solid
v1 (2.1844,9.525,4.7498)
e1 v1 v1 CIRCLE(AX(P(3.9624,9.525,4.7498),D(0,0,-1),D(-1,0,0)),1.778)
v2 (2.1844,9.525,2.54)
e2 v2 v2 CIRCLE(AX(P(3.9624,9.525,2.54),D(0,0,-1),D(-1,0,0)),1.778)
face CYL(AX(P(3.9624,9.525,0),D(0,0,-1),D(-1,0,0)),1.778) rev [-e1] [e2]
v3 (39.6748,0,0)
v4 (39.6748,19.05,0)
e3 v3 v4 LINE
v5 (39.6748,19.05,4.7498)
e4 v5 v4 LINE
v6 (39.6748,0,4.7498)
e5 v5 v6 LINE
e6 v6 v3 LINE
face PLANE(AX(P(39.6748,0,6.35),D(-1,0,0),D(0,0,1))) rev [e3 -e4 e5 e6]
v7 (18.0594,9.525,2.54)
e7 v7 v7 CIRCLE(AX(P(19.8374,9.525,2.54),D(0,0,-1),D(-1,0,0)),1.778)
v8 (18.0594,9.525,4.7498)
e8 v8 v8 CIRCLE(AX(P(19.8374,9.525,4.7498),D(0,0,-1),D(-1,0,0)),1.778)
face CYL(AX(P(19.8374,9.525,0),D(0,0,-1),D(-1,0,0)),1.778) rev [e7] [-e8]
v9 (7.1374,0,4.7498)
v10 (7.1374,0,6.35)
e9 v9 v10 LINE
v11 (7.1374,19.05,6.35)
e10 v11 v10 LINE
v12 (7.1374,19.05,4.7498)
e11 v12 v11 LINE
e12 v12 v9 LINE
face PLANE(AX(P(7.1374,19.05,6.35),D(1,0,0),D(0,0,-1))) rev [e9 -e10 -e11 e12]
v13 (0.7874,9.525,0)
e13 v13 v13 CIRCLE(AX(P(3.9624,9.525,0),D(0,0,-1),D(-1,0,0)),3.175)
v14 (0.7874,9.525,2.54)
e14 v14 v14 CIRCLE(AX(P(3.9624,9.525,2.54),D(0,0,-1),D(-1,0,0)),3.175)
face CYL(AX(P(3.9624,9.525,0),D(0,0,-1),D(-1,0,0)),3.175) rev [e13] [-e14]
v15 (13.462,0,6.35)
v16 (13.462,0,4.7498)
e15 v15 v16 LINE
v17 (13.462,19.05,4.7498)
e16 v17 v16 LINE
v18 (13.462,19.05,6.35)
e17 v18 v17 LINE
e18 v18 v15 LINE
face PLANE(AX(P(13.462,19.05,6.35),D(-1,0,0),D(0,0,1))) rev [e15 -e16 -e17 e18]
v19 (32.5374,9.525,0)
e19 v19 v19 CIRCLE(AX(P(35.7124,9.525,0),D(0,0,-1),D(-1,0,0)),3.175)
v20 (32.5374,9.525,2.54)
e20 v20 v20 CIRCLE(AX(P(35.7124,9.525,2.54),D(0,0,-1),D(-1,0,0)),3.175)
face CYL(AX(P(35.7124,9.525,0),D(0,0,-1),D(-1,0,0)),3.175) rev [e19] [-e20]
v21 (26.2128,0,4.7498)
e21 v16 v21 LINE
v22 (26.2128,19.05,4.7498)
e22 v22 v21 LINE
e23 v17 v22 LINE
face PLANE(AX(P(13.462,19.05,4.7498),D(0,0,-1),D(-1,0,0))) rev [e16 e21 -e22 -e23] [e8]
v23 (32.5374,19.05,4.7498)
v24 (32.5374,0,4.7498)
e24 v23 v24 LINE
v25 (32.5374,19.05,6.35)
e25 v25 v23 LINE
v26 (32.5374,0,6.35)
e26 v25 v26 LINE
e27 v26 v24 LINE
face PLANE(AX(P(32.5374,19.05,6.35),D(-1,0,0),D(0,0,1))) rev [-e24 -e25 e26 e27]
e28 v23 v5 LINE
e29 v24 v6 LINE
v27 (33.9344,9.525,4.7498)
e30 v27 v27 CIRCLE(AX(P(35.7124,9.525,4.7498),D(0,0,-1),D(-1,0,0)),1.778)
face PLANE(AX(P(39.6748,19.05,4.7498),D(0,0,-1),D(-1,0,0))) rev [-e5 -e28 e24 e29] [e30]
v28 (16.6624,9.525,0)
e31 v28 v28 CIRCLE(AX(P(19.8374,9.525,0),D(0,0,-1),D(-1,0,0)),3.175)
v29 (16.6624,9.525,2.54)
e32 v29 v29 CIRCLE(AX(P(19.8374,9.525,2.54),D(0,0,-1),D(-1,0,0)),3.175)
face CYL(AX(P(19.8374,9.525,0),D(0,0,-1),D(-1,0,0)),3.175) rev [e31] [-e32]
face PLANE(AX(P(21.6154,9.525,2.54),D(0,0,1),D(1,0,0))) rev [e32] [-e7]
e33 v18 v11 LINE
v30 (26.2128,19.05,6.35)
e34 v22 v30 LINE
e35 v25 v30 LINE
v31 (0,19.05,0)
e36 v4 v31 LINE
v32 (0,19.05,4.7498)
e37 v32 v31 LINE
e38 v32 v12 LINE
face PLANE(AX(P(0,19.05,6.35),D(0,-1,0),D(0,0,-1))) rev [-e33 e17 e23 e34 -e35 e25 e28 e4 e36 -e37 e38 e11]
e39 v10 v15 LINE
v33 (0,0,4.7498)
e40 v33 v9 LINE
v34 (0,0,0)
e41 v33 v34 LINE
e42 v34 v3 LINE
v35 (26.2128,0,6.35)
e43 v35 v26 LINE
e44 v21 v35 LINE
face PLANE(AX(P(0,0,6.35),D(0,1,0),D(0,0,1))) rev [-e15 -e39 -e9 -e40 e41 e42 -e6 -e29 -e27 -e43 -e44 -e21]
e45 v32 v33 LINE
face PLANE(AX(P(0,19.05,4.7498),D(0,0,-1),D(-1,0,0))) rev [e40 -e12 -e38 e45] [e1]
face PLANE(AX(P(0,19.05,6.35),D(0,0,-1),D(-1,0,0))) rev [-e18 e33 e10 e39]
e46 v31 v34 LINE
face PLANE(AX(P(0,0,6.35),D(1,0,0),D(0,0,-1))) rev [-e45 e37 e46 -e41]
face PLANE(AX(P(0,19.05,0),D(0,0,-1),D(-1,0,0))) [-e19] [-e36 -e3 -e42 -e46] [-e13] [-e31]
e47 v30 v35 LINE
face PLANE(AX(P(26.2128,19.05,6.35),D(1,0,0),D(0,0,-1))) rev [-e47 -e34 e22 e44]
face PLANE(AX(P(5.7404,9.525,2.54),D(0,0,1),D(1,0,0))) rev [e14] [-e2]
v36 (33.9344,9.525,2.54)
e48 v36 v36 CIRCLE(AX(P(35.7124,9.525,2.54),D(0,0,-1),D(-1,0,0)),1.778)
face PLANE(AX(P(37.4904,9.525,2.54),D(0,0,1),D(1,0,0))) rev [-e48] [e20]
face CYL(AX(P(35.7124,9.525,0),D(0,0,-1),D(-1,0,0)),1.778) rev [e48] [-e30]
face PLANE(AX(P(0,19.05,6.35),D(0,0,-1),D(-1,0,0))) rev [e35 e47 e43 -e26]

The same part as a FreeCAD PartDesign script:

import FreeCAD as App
import Part
import Sketcher

V = App.Vector
Q = App.Units.Quantity


def add_polygon(sketch, points):
    """Adds a closed chain of lines whose ends are joined by coincident constraints."""
    first, n = sketch.GeometryCount, len(points)
    for a, b in zip(points, points[1:] + points[:1]):
        sketch.addGeometry(Part.LineSegment(App.Vector(*a, 0), App.Vector(*b, 0)), False)
    for i in range(n):
        sketch.addConstraint(Sketcher.Constraint("Coincident", first + i, 2, first + (i + 1) % n, 1))

doc = App.newDocument("Part")
params = doc.addObject("Spreadsheet::Sheet", "Params")
for row, (alias, value) in enumerate([
    ("sketch1_height", "0.75 in"),
    ("sketch1_width", "1.562 in"),
    ("pad1_length", "0.25 in"),
    ("sketch2_width", "0.281 in"),
    ("sketch2_width2", "0.502 in"),
    ("sketch2_height", "0.063 in"),
    ("sketch3_diameter", "0.14 in"),
    ("hole_diameter", "0.14 in"),
    ("hole_cbore_diameter", "0.25 in"),
    ("hole_cbore_depth", "0.1 in"),
], start=1):
    params.set(f"A{row}", alias)
    params.set(f"B{row}", "=" + value)
    params.setAlias(f"B{row}", alias)

body = doc.addObject("PartDesign::Body", "Body")

# Sketch on XY plane
sketch1 = body.newObject("Sketcher::SketchObject", "Sketch")
sketch1.AttachmentSupport = (doc.getObject("XY_Plane"), [""])
sketch1.MapMode = "FlatFace"
add_polygon(sketch1, [(0, 19.05), (0, 0), (39.6748, 0), (39.6748, 19.05)])  # lines 0-3
sketch1.addConstraint(Sketcher.Constraint("Vertical", 0))
sketch1.addConstraint(Sketcher.Constraint("Horizontal", 1))
sketch1.addConstraint(Sketcher.Constraint("Vertical", 2))
sketch1.addConstraint(Sketcher.Constraint("Horizontal", 3))
sketch1.addConstraint(Sketcher.Constraint("Coincident", 0, 2, -1, 1))
sketch1.addConstraint(Sketcher.Constraint("DistanceY", 0, 2, 0, 1, Q("0.75 in")))
sketch1.addConstraint(Sketcher.Constraint("DistanceX", 1, 1, 1, 2, Q("1.562 in")))
sketch1.setExpression("Constraints[9]", "Params.sketch1_height")
sketch1.setExpression("Constraints[10]", "Params.sketch1_width")
pad1 = body.newObject("PartDesign::Pad", "Pad")
pad1.Profile = sketch1
pad1.setExpression("Length", "Params.pad1_length")

# Sketch on XZ plane
sketch2 = body.newObject("Sketcher::SketchObject", "Sketch001")
sketch2.AttachmentSupport = (doc.getObject("XZ_Plane"), [""])
sketch2.MapMode = "FlatFace"
add_polygon(sketch2, [(0, 6.35), (0, 4.7498), (7.1374, 4.7498), (7.1374, 6.35)])  # lines 0-3
add_polygon(sketch2, [(13.462, 6.35), (13.462, 4.7498), (26.2128, 4.7498), (26.2128, 6.35)])  # lines 4-7
add_polygon(sketch2, [(32.5374, 6.35), (32.5374, 4.7498), (39.6748, 4.7498), (39.6748, 6.35)])  # lines 8-11
sketch2.addConstraint(Sketcher.Constraint("Vertical", 0))
sketch2.addConstraint(Sketcher.Constraint("Horizontal", 1))
sketch2.addConstraint(Sketcher.Constraint("Vertical", 2))
sketch2.addConstraint(Sketcher.Constraint("Horizontal", 3))
sketch2.addConstraint(Sketcher.Constraint("Vertical", 4))
sketch2.addConstraint(Sketcher.Constraint("Horizontal", 5))
sketch2.addConstraint(Sketcher.Constraint("Vertical", 6))
sketch2.addConstraint(Sketcher.Constraint("Horizontal", 7))
sketch2.addConstraint(Sketcher.Constraint("Vertical", 8))
sketch2.addConstraint(Sketcher.Constraint("Horizontal", 9))
sketch2.addConstraint(Sketcher.Constraint("Vertical", 10))
sketch2.addConstraint(Sketcher.Constraint("Horizontal", 11))
sketch2.addConstraint(Sketcher.Constraint("PointOnObject", 0, 2, -2))
sketch2.addConstraint(Sketcher.Constraint("Horizontal", 1, 2, 4, 2))
sketch2.addConstraint(Sketcher.Constraint("Horizontal", 3, 2, 6, 2))
sketch2.addConstraint(Sketcher.Constraint("Horizontal", 5, 2, 8, 2))
sketch2.addConstraint(Sketcher.Constraint("Horizontal", 7, 2, 10, 2))
sketch2.addConstraint(Sketcher.Constraint("Equal", 3, 9))
sketch2.addConstraint(Sketcher.Constraint("DistanceX", 1, 2, 8, 2, Q("1 in")))
sketch2.addConstraint(Sketcher.Constraint("DistanceX", 1, 1, 1, 2, Q("0.281 in")))
sketch2.addConstraint(Sketcher.Constraint("DistanceX", 5, 1, 5, 2, Q("0.502 in")))
sketch2.addConstraint(Sketcher.Constraint("DistanceY", 0, 2, 0, 1, Q("0.063 in")))
sketch2.addConstraint(Sketcher.Constraint("DistanceY", -1, 1, 2, 2, Q("0.25 in")))
sketch2.addConstraint(Sketcher.Constraint("DistanceX", -1, 1, 4, 2, Q("0.53 in")))
sketch2.setExpression("Constraints[31]", "Params.sketch2_width")
sketch2.setExpression("Constraints[32]", "Params.sketch2_width2")
sketch2.setExpression("Constraints[33]", "Params.sketch2_height")
pocket1 = body.newObject("PartDesign::Pocket", "Pocket")
pocket1.Profile = sketch2
pocket1.Type = "ThroughAll"

# Sketch on XY plane
sketch3 = body.newObject("Sketcher::SketchObject", "Sketch002")
sketch3.AttachmentSupport = (doc.getObject("XY_Plane"), [""])
sketch3.MapMode = "FlatFace"
sketch3.addGeometry(Part.Circle(V(3.9624, 9.525, 0), V(0, 0, 1), 1.778), False)
sketch3.addGeometry(Part.Circle(V(19.8374, 9.525, 0), V(0, 0, 1), 1.778), False)
sketch3.addGeometry(Part.Circle(V(35.7124, 9.525, 0), V(0, 0, 1), 1.778), False)
sketch3.addConstraint(Sketcher.Constraint("Equal", 0, 1))
sketch3.addConstraint(Sketcher.Constraint("Equal", 1, 2))
sketch3.addConstraint(Sketcher.Constraint("Horizontal", 0, 3, 1, 3))
sketch3.addConstraint(Sketcher.Constraint("Horizontal", 1, 3, 2, 3))
sketch3.addConstraint(Sketcher.Constraint("Diameter", 0, Q("0.14 in")))
sketch3.addConstraint(Sketcher.Constraint("DistanceX", 0, 3, 2, 3, Q("1.25 in")))
sketch3.addConstraint(Sketcher.Constraint("DistanceX", -1, 1, 0, 3, Q("0.156 in")))
sketch3.addConstraint(Sketcher.Constraint("DistanceY", -1, 1, 0, 3, Q("0.375 in")))
sketch3.addConstraint(Sketcher.Constraint("DistanceX", -1, 1, 1, 3, Q("0.781 in")))
sketch3.setExpression("Constraints[4]", "Params.sketch3_diameter")
doc.recompute()
hole = body.newObject("PartDesign::Hole", "Hole")
hole.Profile = sketch3
hole.ThreadType = "None"
hole.setExpression("Diameter", "Params.hole_diameter")
hole.DepthType = "ThroughAll"
hole.HoleCutType = "Counterbore"
hole.setExpression("HoleCutDiameter", "Params.hole_cbore_diameter")
hole.setExpression("HoleCutDepth", "Params.hole_cbore_depth")
hole.Reversed = True

doc.recompute()
